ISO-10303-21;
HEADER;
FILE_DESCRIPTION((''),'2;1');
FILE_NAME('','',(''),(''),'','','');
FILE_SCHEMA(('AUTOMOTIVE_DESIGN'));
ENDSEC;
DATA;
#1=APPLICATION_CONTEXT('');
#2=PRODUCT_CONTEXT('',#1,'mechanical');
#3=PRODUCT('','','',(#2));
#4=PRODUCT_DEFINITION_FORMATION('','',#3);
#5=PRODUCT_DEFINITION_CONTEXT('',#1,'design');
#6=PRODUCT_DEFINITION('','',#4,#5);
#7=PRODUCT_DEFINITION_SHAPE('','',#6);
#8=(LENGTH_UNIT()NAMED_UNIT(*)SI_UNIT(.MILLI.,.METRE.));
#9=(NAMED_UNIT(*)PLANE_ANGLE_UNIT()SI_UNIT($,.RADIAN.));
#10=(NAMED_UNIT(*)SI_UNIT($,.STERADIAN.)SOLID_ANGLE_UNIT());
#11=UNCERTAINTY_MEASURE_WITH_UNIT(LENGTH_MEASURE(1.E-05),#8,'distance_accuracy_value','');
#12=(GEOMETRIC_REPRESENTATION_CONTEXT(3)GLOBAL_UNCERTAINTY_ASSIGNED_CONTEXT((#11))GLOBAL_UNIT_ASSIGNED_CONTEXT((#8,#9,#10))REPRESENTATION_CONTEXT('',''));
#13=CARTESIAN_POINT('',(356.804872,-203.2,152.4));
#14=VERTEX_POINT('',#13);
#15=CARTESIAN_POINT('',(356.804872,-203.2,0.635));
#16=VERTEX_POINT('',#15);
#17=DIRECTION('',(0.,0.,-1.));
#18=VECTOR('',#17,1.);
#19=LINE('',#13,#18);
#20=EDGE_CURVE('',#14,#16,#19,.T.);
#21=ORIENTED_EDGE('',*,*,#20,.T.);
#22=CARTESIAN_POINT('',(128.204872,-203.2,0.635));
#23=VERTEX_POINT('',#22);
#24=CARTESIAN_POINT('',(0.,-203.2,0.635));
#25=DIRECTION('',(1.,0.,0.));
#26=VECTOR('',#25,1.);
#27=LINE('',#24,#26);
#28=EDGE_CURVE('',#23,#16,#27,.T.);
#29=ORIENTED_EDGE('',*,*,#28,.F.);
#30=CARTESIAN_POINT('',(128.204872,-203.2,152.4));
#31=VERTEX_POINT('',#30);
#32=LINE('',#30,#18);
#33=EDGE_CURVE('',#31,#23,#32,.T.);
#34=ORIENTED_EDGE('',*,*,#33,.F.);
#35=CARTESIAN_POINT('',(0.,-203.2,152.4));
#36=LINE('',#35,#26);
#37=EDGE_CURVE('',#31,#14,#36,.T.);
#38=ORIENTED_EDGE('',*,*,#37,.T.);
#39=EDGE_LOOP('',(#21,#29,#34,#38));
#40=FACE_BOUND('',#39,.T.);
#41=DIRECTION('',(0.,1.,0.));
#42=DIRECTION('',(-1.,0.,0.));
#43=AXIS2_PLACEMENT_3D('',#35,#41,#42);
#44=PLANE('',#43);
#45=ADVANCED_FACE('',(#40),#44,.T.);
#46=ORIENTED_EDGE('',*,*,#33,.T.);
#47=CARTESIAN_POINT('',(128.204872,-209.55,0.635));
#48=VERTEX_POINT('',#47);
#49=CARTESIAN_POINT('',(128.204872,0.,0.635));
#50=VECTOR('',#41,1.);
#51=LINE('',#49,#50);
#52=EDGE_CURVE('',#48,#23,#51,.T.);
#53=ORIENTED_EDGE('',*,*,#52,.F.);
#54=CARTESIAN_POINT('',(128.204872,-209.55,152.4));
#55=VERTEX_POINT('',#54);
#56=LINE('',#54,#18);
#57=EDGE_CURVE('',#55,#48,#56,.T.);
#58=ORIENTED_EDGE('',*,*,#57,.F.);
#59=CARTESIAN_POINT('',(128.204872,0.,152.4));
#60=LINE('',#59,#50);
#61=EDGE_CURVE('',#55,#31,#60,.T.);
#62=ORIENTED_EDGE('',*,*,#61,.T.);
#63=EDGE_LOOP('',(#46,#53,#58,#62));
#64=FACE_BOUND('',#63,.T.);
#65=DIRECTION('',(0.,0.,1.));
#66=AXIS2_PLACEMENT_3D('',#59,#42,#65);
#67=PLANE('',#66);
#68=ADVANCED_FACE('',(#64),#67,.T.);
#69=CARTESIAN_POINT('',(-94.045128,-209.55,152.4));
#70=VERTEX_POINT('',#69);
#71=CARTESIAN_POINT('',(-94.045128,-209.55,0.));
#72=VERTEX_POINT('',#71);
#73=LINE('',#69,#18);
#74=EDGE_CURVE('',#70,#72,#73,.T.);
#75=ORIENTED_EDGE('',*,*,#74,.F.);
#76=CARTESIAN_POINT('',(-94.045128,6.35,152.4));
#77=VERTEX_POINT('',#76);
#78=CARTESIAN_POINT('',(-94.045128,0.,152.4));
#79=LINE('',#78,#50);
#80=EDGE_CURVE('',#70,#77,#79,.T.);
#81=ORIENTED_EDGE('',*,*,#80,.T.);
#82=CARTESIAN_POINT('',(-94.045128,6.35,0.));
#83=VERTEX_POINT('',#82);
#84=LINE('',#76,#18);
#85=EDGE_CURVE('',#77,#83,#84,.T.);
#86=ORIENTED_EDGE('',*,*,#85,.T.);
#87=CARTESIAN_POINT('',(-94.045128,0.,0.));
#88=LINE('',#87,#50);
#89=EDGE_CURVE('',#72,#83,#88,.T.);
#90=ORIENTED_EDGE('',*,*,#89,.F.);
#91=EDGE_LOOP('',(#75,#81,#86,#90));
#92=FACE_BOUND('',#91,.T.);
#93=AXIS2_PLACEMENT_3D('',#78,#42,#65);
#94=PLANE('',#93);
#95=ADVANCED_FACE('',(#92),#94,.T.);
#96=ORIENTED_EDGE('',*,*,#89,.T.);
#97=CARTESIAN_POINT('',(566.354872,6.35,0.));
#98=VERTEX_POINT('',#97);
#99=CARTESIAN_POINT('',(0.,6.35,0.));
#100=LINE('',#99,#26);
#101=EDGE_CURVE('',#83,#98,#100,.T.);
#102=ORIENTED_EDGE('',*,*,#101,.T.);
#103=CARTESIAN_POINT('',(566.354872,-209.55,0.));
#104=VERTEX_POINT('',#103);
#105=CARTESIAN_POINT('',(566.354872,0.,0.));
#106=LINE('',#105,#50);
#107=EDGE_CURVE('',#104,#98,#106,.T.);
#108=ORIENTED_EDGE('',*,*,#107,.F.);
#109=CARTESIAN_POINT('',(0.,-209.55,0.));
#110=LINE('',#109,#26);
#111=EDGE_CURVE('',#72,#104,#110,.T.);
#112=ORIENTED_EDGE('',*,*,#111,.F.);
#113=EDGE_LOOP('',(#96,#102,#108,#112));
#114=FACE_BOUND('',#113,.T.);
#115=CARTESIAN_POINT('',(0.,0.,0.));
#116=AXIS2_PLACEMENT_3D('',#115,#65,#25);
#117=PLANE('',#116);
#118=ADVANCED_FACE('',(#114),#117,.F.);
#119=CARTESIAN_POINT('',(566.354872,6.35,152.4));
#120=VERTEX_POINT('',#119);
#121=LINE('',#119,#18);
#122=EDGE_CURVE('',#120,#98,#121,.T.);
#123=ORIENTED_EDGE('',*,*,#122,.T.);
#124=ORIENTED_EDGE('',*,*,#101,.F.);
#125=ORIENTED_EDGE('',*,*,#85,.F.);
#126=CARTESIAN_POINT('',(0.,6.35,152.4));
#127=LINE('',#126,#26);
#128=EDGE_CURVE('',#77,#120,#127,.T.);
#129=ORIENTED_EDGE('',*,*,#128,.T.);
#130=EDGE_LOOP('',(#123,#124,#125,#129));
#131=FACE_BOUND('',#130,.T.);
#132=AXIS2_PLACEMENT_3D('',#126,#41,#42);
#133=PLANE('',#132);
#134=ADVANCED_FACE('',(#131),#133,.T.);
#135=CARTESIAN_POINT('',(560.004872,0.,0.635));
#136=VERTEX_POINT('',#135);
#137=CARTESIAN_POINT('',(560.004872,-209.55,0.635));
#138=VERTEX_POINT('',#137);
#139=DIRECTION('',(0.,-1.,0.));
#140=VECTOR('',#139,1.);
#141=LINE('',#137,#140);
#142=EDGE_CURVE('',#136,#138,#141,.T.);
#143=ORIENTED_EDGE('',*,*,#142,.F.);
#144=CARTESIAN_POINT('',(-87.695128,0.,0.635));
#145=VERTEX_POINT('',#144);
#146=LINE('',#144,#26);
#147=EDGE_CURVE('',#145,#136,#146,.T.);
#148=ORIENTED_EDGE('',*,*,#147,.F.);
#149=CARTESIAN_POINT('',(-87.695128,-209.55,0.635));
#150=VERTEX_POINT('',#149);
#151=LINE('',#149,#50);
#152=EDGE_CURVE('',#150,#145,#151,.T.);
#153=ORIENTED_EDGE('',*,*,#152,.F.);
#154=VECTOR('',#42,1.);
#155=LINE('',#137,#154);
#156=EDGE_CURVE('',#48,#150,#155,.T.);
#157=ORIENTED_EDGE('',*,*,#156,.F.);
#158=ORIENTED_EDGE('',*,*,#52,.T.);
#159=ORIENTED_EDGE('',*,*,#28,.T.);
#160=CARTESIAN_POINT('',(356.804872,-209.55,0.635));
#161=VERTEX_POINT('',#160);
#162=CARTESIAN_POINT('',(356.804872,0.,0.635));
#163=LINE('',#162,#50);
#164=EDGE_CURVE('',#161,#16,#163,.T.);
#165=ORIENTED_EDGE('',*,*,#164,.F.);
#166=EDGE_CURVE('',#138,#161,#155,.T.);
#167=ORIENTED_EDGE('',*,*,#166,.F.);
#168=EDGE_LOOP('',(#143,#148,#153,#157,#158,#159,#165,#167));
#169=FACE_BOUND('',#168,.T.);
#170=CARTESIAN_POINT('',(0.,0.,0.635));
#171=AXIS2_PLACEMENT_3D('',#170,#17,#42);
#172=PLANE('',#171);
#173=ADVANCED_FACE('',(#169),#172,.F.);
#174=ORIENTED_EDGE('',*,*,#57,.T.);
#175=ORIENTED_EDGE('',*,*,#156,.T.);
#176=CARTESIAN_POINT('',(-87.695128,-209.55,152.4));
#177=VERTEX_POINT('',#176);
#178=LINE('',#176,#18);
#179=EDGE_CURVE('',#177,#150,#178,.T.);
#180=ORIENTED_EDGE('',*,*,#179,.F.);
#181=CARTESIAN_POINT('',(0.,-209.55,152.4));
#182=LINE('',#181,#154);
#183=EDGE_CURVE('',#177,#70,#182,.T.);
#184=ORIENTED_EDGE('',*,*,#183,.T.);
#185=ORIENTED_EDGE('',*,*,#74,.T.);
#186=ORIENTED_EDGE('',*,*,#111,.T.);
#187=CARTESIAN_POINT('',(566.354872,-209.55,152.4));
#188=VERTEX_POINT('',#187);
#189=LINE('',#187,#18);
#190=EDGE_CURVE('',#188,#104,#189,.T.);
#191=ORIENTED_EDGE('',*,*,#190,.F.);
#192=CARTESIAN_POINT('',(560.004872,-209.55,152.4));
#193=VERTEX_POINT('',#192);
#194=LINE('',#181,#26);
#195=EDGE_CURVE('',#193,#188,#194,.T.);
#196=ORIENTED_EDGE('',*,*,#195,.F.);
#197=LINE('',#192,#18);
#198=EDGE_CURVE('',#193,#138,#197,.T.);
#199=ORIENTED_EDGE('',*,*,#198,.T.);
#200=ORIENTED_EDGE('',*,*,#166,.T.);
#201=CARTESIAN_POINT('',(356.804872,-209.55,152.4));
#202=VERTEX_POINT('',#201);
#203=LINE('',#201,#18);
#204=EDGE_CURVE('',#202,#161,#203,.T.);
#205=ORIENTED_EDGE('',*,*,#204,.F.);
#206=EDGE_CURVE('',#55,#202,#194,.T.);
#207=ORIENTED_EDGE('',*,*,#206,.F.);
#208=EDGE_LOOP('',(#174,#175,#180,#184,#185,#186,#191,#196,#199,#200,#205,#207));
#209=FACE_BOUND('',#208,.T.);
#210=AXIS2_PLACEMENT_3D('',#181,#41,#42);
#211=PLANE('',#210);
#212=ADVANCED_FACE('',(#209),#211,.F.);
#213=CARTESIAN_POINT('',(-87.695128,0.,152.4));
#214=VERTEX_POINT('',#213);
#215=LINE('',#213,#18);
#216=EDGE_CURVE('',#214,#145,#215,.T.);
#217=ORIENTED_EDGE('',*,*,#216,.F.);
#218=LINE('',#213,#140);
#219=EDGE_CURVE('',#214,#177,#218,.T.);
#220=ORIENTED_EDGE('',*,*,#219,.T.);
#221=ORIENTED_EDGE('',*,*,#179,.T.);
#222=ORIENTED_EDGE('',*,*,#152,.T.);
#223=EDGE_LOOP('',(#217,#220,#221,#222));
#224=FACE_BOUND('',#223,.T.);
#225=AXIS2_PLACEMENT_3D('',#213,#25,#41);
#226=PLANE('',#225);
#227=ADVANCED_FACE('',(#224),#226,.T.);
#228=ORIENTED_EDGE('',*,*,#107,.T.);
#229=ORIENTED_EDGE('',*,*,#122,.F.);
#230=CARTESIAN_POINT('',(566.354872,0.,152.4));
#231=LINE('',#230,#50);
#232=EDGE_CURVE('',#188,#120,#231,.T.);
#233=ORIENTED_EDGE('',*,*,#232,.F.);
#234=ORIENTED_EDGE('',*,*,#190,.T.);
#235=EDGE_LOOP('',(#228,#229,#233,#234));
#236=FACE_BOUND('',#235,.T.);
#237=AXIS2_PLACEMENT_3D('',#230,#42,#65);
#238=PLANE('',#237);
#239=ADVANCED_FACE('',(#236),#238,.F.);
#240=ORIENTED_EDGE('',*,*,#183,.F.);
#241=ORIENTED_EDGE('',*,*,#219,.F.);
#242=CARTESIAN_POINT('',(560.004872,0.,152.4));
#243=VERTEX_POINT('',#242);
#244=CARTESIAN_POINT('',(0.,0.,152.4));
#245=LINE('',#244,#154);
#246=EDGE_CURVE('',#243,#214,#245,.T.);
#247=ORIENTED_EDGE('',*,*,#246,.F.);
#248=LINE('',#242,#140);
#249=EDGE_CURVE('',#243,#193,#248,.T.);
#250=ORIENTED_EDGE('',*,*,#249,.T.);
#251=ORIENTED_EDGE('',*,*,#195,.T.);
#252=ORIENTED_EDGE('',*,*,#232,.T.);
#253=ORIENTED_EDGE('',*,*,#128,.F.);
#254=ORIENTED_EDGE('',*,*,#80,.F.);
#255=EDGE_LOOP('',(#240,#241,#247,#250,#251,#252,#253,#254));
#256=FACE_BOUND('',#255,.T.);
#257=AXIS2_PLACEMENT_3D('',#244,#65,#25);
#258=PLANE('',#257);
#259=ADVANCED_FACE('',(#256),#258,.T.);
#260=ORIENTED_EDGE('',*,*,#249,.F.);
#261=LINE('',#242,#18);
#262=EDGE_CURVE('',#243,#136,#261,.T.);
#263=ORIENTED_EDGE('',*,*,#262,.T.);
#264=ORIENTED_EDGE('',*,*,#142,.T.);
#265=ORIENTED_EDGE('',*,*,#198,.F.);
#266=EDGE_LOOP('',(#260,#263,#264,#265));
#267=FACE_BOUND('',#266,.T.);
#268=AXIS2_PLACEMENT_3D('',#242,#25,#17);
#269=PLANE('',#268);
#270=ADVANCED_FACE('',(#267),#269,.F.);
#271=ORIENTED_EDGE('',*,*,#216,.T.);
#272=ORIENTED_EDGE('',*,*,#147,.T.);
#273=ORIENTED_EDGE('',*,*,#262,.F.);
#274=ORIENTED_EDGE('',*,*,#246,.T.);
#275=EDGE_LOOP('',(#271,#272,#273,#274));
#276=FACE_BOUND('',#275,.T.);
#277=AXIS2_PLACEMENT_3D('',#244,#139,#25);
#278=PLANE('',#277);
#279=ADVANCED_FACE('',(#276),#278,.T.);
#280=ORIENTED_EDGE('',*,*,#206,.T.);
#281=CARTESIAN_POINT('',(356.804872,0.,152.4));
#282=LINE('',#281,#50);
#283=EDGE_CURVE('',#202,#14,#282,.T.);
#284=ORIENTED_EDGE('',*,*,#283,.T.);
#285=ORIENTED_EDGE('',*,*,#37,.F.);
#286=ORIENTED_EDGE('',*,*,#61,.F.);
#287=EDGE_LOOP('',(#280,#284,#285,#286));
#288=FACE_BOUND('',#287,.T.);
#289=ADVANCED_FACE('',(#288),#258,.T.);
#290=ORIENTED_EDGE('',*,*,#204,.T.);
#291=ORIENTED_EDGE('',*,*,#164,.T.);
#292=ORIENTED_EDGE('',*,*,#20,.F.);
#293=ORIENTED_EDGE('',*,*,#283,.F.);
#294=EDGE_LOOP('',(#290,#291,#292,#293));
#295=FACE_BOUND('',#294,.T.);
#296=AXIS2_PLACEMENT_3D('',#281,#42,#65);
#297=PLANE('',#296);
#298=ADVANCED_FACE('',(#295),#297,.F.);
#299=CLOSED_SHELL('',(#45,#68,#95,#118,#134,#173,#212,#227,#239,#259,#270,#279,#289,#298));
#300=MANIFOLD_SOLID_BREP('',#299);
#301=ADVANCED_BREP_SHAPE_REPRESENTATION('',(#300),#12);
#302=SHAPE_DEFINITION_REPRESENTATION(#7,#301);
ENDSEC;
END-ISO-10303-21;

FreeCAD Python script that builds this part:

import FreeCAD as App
import Part
import Sketcher
from FreeCAD import Vector
Q = App.Units.Quantity


def add_polygon(sketch, points):
    """Adds a closed chain of lines whose ends are joined by coincident constraints."""
    first, n = sketch.GeometryCount, len(points)
    for a, b in zip(points, points[1:] + points[:1]):
        sketch.addGeometry(Part.LineSegment(App.Vector(*a, 0), App.Vector(*b, 0)), False)
    for i in range(n):
        sketch.addConstraint(Sketcher.Constraint("Coincident", first + i, 2, first + (i + 1) % n, 1))

doc = App.newDocument("Part")
body = doc.addObject("PartDesign::Body", "Body")

sketch1 = body.newObject("Sketcher::SketchObject", "Sketch")
sketch1.AttachmentSupport = (doc.getObject("XY_Plane"), [""])
sketch1.MapMode = "FlatFace"
add_polygon(sketch1, [(566, 6), (-94, 6), (-94, -210), (-88, -210), (-88, 0), (560, 0), (560, -210), (566, -210)])
sketch1.addConstraint(Sketcher.Constraint("Horizontal", 0))
sketch1.addConstraint(Sketcher.Constraint("Vertical", 1))
sketch1.addConstraint(Sketcher.Constraint("Horizontal", 2))
sketch1.addConstraint(Sketcher.Constraint("Vertical", 3))
sketch1.addConstraint(Sketcher.Constraint("Horizontal", 4))
sketch1.addConstraint(Sketcher.Constraint("Vertical", 5))
sketch1.addConstraint(Sketcher.Constraint("Horizontal", 6))
sketch1.addConstraint(Sketcher.Constraint("Vertical", 7))
sketch1.addConstraint(Sketcher.Constraint("PointOnObject", 3, 2, -1))
sketch1.addConstraint(Sketcher.Constraint("Horizontal", 2, 2, 5, 2))
sketch1.addConstraint(Sketcher.Constraint("Equal", 2, 6))
sketch1.addConstraint(Sketcher.Constraint("DistanceX", 0, 2, 0, 1, Q("26 in")))
sketch1.addConstraint(Sketcher.Constraint("DistanceX", 4, 1, 4, 2, Q("25.5 in")))
sketch1.addConstraint(Sketcher.Constraint("DistanceY", 1, 2, 1, 1, Q("8.5 in")))
sketch1.addConstraint(Sketcher.Constraint("DistanceY", 3, 1, 3, 2, Q("8.25 in")))
sketch1.addConstraint(Sketcher.Constraint("DistanceX", 0, 2, -1, 1, 94.045128))
pad1 = body.newObject("PartDesign::Pad", "Pad")
pad1.Profile = sketch1
pad1.Length = Q("6 in")
body2 = doc.addObject("PartDesign::Body", "Body001")

sketch2 = body2.newObject("Sketcher::SketchObject", "Sketch001")
sketch2.AttachmentSupport = (doc.getObject("XY_Plane001"), [""])
sketch2.MapMode = "FlatFace"
add_polygon(sketch2, [(128, -203), (128, -210), (357, -210), (357, -203)])
sketch2.addConstraint(Sketcher.Constraint("Vertical", 0))
sketch2.addConstraint(Sketcher.Constraint("Horizontal", 1))
sketch2.addConstraint(Sketcher.Constraint("Vertical", 2))
sketch2.addConstraint(Sketcher.Constraint("Horizontal", 3))
sketch2.addConstraint(Sketcher.Constraint("DistanceX", 1, 1, 1, 2, Q("9 in")))
sketch2.addConstraint(Sketcher.Constraint("DistanceY", 2, 2, -1, 1, Q("8 in")))
sketch2.addConstraint(Sketcher.Constraint("DistanceY", 0, 2, 0, 1, Q("0.25 in")))
sketch2.addConstraint(Sketcher.Constraint("DistanceX", -1, 1, 0, 2, 128.204872))
pad2 = body2.newObject("PartDesign::Pad", "Pad001")
pad2.Profile = sketch2
pad2.Length = Q("6 in")
body.AllowCompound = True
doc.recompute()

boolean = body.newObject("PartDesign::Boolean", "Boolean")
boolean.Type = "Fuse"
boolean.addObjects([body2])

sketch3 = body.newObject("Sketcher::SketchObject", "Sketch002")
sketch3.AttachmentSupport = (doc.getObject("XY_Plane"), [""])
sketch3.MapMode = "FlatFace"
add_polygon(sketch3, [(560, 0), (560, -210), (-88, -210), (-88, 0)])
sketch3.addConstraint(Sketcher.Constraint("Vertical", 0))
sketch3.addConstraint(Sketcher.Constraint("Horizontal", 1))
sketch3.addConstraint(Sketcher.Constraint("Vertical", 2))
sketch3.addConstraint(Sketcher.Constraint("Horizontal", 3))
sketch3.addConstraint(Sketcher.Constraint("PointOnObject", 2, 2, -1))
sketch3.addConstraint(Sketcher.Constraint("DistanceX", 1, 2, 1, 1, Q("25.5 in")))
sketch3.addConstraint(Sketcher.Constraint("DistanceY", 0, 2, 0, 1, Q("8.25 in")))
sketch3.addConstraint(Sketcher.Constraint("DistanceX", -1, 1, 0, 2, 560.004872))
pad3 = body.newObject("PartDesign::Pad", "Pad002")
pad3.Profile = sketch3
pad3.Length = Q("0.025 in")

doc.recompute()
